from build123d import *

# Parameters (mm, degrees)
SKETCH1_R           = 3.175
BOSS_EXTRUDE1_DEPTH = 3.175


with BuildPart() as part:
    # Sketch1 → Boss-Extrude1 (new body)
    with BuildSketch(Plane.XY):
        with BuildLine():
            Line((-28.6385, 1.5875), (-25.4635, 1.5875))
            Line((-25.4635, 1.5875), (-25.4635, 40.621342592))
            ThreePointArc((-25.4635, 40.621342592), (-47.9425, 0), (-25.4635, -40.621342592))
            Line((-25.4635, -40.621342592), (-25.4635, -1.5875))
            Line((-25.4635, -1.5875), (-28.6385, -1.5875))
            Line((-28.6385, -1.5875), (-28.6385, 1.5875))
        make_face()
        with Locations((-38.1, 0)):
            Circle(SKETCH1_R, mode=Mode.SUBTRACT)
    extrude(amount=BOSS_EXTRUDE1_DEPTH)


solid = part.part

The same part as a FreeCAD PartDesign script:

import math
import FreeCAD as App
import Part
import Sketcher
Q = App.Units.Quantity

doc = App.newDocument("Part")
params = doc.addObject("Spreadsheet::Sheet", "Params")
for row, (alias, value) in enumerate([
    ("sketch1_diameter", "0.25 in"),
    ("sketch1_width", "0.125 in"),
    ("pad1_length", "0.125 in"),
], start=1):
    params.set(f"A{row}", alias)
    params.set(f"B{row}", "=" + value)
    params.setAlias(f"B{row}", alias)

body = doc.addObject("PartDesign::Body", "Body")

# Sketch on XY plane
sketch1 = doc.addObject("Sketcher::SketchObject", "Sketch")
body.addObject(sketch1)
sketch1.AttachmentSupport = (doc.XY_Plane, [""])
sketch1.MapMode = "FlatFace"
sketch1.addGeometry([
    Part.LineSegment(App.Vector(-28.6, 1.6, 0), App.Vector(-25.5, 1.6, 0)),  # 0
    Part.LineSegment(App.Vector(-25.5, 1.6, 0), App.Vector(-25.5, 40.6, 0)),  # 1
    Part.ArcOfCircle(Part.Circle(App.Vector(0, 0, 0), App.Vector(0, 0, 1), 47.9), math.radians(122), math.radians(238)),  # 2
    Part.LineSegment(App.Vector(-25.5, -40.6, 0), App.Vector(-25.5, -1.6, 0)),  # 3
    Part.LineSegment(App.Vector(-25.5, -1.6, 0), App.Vector(-28.6, -1.6, 0)),  # 4
    Part.LineSegment(App.Vector(-28.6, -1.6, 0), App.Vector(-28.6, 1.6, 0)),  # 5
    Part.Circle(App.Vector(-38.1, 0, 0), App.Vector(0, 0, 1), 3.2),  # 6
], False)
sketch1.addConstraint([
    Sketcher.Constraint("Coincident", 0, 2, 1, 1),
    Sketcher.Constraint("Coincident", 1, 2, 2, 1),
    Sketcher.Constraint("Coincident", 2, 2, 3, 1),
    Sketcher.Constraint("Coincident", 3, 2, 4, 1),
    Sketcher.Constraint("Coincident", 4, 2, 5, 1),
    Sketcher.Constraint("Coincident", 5, 2, 0, 1),
    Sketcher.Constraint("Horizontal", 0),
    Sketcher.Constraint("Vertical", 1),
    Sketcher.Constraint("Vertical", 3),
    Sketcher.Constraint("Horizontal", 4),
    Sketcher.Constraint("Vertical", 5),
    Sketcher.Constraint("Coincident", 2, 3, -1, 1),
    Sketcher.Constraint("Symmetric", 0, 2, 3, 2, -1),
    Sketcher.Constraint("PointOnObject", 6, 3, -1),
    Sketcher.Constraint("Equal", 4, 5),
    Sketcher.Constraint("Diameter", 6, Q("0.25 in")),
    Sketcher.Constraint("DistanceX", 6, 3, -1, 1, Q("1.5 in")),
    Sketcher.Constraint("Radius", 2, Q("1.8875 in")),
    Sketcher.Constraint("DistanceX", 0, 1, 0, 2, Q("0.125 in")),
    Sketcher.Constraint("DistanceX", 0, 2, -1, 1, Q("1.0025 in")),
])
sketch1.setExpression("Constraints[15]", "Params.sketch1_diameter")
sketch1.setExpression("Constraints[18]", "Params.sketch1_width")
pad1 = doc.addObject("PartDesign::Pad", "Pad")
body.addObject(pad1)
pad1.Profile = sketch1
pad1.setExpression("Length", "Params.pad1_length")

doc.recompute()
